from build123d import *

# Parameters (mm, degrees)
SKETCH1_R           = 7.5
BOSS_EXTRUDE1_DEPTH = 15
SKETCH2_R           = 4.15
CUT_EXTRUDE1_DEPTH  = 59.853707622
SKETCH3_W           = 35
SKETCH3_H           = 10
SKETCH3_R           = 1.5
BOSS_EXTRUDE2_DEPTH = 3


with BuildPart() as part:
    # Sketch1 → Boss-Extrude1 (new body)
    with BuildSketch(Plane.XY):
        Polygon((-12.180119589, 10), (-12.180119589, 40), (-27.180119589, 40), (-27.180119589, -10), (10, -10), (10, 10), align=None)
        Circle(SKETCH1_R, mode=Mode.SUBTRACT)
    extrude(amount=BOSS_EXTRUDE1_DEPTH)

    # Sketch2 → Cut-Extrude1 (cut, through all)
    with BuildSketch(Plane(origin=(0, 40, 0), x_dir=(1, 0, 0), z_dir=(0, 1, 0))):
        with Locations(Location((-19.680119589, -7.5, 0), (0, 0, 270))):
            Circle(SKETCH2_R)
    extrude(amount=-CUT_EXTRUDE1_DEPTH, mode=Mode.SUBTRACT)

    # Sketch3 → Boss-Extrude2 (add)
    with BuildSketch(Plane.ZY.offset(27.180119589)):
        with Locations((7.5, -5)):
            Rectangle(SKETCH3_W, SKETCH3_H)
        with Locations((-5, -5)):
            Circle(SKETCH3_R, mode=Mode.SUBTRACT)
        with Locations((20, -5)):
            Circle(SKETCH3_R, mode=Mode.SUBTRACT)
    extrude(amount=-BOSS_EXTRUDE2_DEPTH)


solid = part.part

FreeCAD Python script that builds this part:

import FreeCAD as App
import Part
import Sketcher

V = App.Vector
Q = App.Units.Quantity


def add_polygon(sketch, points):
    """Adds a closed chain of lines whose ends are joined by coincident constraints."""
    first, n = sketch.GeometryCount, len(points)
    for a, b in zip(points, points[1:] + points[:1]):
        sketch.addGeometry(Part.LineSegment(App.Vector(*a, 0), App.Vector(*b, 0)), False)
    for i in range(n):
        sketch.addConstraint(Sketcher.Constraint("Coincident", first + i, 2, first + (i + 1) % n, 1))

doc = App.newDocument("Part")
body = doc.addObject("PartDesign::Body", "Body")

sketch1 = body.newObject("Sketcher::SketchObject", "Sketch")
sketch1.AttachmentSupport = (doc.getObject("XY_Plane"), [""])
sketch1.MapMode = "FlatFace"
add_polygon(sketch1, [(-12, 10), (-12, 40), (-27, 40), (-27, -10), (10, -10), (10, 10)])
sketch1.addGeometry(Part.Circle(V(0, 0, 0), V(0, 0, 1), 8), False)
sketch1.addConstraint(Sketcher.Constraint("Vertical", 0))
sketch1.addConstraint(Sketcher.Constraint("Horizontal", 1))
sketch1.addConstraint(Sketcher.Constraint("Vertical", 2))
sketch1.addConstraint(Sketcher.Constraint("Horizontal", 3))
sketch1.addConstraint(Sketcher.Constraint("Vertical", 4))
sketch1.addConstraint(Sketcher.Constraint("Horizontal", 5))
sketch1.addConstraint(Sketcher.Constraint("Coincident", 6, 3, -1, 1))
sketch1.addConstraint(Sketcher.Constraint("Diameter", 6, Q("15 mm")))
sketch1.addConstraint(Sketcher.Constraint("DistanceX", 1, 2, 1, 1, Q("15 mm")))
sketch1.addConstraint(Sketcher.Constraint("DistanceY", 0, 1, 0, 2, Q("30 mm")))
sketch1.addConstraint(Sketcher.Constraint("DistanceY", 2, 2, 2, 1, Q("50 mm")))
sketch1.addConstraint(Sketcher.Constraint("DistanceY", -1, 1, 0, 2, Q("40 mm")))
sketch1.addConstraint(Sketcher.Constraint("DistanceX", -1, 1, 3, 2, Q("10 mm")))
sketch1.addConstraint(Sketcher.Constraint("DistanceX", 3, 1, 3, 2, Q("37.18012 mm")))
pad1 = body.newObject("PartDesign::Pad", "Pad")
pad1.Profile = sketch1
pad1.Length = 15

sketch2 = body.newObject("Sketcher::SketchObject", "Sketch001")
sketch2.AttachmentSupport = (doc.getObject("XZ_Plane"), [""])
sketch2.MapMode = "FlatFace"
sketch2.AttachmentOffset = App.Placement(V(0, 0, -40), App.Rotation())
sketch2.addGeometry(Part.Circle(V(-19.7, 7.5, 0), V(0, 0, 1), 4.2), False)
sketch2.addConstraint(Sketcher.Constraint("Diameter", 0, Q("8.3 mm")))
sketch2.addConstraint(Sketcher.Constraint("DistanceY", -1, 1, 0, 3, Q("7.5 mm")))
sketch2.addConstraint(Sketcher.Constraint("DistanceX", 0, 3, -1, 1, Q("19.68012 mm")))
pocket1 = body.newObject("PartDesign::Pocket", "Pocket")
pocket1.Profile = sketch2
pocket1.Type = "ThroughAll"
pocket1.Reversed = True

sketch3 = body.newObject("Sketcher::SketchObject", "Sketch002")
sketch3.AttachmentSupport = (doc.getObject("YZ_Plane"), [""])
sketch3.MapMode = "FlatFace"
sketch3.AttachmentOffset = App.Placement(V(0, 0, -27.18012), App.Rotation())
add_polygon(sketch3, [(0, -10), (-10, -10), (-10, 25), (0, 25)])
sketch3.addGeometry(Part.Circle(V(-5, -5, 0), V(0, 0, 1), 1.5), False)
sketch3.addGeometry(Part.Circle(V(-5, 20, 0), V(0, 0, 1), 1.5), False)
sketch3.addConstraint(Sketcher.Constraint("Horizontal", 0))
sketch3.addConstraint(Sketcher.Constraint("Vertical", 1))
sketch3.addConstraint(Sketcher.Constraint("Horizontal", 2))
sketch3.addConstraint(Sketcher.Constraint("Vertical", 3))
sketch3.addConstraint(Sketcher.Constraint("Equal", 4, 5))
sketch3.addConstraint(Sketcher.Constraint("PointOnObject", 2, 2, -2))
sketch3.addConstraint(Sketcher.Constraint("Vertical", 4, 3, 5, 3))
sketch3.addConstraint(Sketcher.Constraint("Diameter", 4, Q("3 mm")))
sketch3.addConstraint(Sketcher.Constraint("DistanceX", 0, 2, 0, 1, Q("10 mm")))
sketch3.addConstraint(Sketcher.Constraint("DistanceY", 1, 1, 1, 2, Q("35 mm")))
sketch3.addConstraint(Sketcher.Constraint("DistanceX", 4, 3, -1, 1, Q("5 mm")))
sketch3.addConstraint(Sketcher.Constraint("DistanceY", 4, 3, -1, 1, Q("5 mm")))
sketch3.addConstraint(Sketcher.Constraint("DistanceY", -1, 1, 5, 3, Q("20 mm")))
sketch3.addConstraint(Sketcher.Constraint("DistanceY", 0, 2, -1, 1, Q("10 mm")))
pad2 = body.newObject("PartDesign::Pad", "Pad001")
pad2.Profile = sketch3
pad2.Length = 3

doc.recompute()
